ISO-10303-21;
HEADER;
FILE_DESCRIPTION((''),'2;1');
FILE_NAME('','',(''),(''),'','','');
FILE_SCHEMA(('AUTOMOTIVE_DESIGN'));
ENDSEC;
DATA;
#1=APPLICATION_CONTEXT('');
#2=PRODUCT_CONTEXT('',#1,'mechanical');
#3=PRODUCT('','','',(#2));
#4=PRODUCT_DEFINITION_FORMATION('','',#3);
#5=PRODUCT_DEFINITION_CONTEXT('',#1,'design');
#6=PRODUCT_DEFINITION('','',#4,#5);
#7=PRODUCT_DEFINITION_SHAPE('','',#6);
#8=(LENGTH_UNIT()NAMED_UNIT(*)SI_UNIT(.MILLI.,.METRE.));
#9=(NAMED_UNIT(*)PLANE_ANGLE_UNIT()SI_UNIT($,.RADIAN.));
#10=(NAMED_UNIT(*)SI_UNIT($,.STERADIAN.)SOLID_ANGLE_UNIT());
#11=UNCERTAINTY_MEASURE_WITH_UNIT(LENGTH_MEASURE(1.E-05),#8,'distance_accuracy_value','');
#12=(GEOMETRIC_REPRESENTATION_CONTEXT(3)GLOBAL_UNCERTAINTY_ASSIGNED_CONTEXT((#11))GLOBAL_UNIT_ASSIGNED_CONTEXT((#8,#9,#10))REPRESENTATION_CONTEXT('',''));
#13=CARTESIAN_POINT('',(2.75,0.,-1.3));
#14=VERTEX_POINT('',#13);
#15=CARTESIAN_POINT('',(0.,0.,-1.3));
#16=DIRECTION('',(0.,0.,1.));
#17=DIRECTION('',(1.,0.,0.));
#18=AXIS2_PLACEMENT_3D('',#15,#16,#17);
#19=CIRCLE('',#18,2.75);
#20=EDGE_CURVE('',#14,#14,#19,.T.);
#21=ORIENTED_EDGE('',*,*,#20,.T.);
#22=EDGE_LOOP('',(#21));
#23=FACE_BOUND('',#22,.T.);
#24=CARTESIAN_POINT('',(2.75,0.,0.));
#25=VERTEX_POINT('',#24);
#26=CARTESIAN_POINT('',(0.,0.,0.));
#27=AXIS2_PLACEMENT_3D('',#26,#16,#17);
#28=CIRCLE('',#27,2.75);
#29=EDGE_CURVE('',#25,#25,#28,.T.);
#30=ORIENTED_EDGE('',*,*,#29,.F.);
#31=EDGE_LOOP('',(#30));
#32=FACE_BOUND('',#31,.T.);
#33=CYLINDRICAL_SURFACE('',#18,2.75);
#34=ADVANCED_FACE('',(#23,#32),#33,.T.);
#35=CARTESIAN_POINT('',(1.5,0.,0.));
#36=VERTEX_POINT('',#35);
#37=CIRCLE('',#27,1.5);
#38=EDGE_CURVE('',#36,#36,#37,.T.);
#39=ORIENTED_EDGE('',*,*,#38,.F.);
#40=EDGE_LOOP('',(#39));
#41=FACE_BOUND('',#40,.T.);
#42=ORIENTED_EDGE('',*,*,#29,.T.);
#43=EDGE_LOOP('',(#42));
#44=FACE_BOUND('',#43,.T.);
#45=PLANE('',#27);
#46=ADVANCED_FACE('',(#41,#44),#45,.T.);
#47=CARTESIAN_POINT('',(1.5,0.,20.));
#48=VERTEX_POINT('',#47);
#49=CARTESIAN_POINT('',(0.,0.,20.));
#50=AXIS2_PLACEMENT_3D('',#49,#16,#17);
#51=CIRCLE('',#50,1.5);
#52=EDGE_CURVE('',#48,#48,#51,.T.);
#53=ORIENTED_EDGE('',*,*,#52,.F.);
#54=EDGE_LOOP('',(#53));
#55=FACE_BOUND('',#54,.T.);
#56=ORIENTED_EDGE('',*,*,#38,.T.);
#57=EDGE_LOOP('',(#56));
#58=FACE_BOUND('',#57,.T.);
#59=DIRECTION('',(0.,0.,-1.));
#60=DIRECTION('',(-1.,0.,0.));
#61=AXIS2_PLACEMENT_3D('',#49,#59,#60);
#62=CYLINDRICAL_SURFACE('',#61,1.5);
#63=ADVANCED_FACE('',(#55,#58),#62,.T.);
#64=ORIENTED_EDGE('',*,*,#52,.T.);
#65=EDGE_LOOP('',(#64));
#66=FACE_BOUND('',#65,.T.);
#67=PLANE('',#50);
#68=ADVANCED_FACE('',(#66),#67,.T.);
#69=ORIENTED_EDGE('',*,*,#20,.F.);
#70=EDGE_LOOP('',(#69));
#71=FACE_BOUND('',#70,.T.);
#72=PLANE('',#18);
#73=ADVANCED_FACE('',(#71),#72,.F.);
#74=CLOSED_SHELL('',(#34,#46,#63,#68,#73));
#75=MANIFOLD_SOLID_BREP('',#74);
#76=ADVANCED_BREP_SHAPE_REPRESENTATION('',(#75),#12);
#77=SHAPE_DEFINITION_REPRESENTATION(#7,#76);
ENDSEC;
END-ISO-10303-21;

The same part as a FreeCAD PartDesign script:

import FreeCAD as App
import Part
import Sketcher
Q = App.Units.Quantity

doc = App.newDocument("Part")
body = doc.addObject("PartDesign::Body", "Body")

# Sketch on XY plane
sketch1 = doc.addObject("Sketcher::SketchObject", "Sketch")
body.addObject(sketch1)
sketch1.AttachmentSupport = (doc.XY_Plane, [""])
sketch1.MapMode = "FlatFace"
sketch1.addGeometry(Part.Circle(App.Vector(0, 0, 0), App.Vector(0, 0, 1), 1.5), False)
sketch1.addConstraint(Sketcher.Constraint("Coincident", 0, 3, -1, 1))
sketch1.addConstraint(Sketcher.Constraint("Diameter", 0, Q("3 mm")))
pad1 = doc.addObject("PartDesign::Pad", "Pad")
body.addObject(pad1)
pad1.Profile = sketch1
pad1.Length = 20

# Sketch on XY plane
sketch2 = doc.addObject("Sketcher::SketchObject", "Sketch001")
body.addObject(sketch2)
sketch2.AttachmentSupport = (doc.XY_Plane, [""])
sketch2.MapMode = "FlatFace"
sketch2.addGeometry(Part.Circle(App.Vector(0, 0, 0), App.Vector(0, 0, 1), 2.8), False)
sketch2.addConstraint(Sketcher.Constraint("Coincident", 0, 3, -1, 1))
sketch2.addConstraint(Sketcher.Constraint("Diameter", 0, Q("5.5 mm")))
pad2 = doc.addObject("PartDesign::Pad", "Pad001")
body.addObject(pad2)
pad2.Profile = sketch2
pad2.Length = 1.3
pad2.Reversed = True

doc.recompute()
